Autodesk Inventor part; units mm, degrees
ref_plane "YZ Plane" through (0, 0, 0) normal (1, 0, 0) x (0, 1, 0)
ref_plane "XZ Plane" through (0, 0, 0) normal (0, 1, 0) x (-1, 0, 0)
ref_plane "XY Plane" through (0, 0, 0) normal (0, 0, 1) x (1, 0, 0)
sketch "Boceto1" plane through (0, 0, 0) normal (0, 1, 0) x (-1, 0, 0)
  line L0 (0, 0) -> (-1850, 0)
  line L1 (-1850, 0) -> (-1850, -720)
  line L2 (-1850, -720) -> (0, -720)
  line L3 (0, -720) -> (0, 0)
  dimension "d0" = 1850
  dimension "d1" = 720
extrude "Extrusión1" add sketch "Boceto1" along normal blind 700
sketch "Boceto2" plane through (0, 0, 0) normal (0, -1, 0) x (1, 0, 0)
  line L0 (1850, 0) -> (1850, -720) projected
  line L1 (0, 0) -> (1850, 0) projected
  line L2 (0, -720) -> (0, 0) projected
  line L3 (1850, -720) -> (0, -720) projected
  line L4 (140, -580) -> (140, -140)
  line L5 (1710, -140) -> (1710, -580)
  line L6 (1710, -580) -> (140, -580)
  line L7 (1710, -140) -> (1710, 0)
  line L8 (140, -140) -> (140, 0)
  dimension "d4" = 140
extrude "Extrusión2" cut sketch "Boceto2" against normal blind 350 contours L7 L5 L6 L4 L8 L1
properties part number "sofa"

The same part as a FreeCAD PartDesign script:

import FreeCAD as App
import Part
import Sketcher
from FreeCAD import Vector
Q = App.Units.Quantity

doc = App.newDocument("Part")
params = doc.addObject("Spreadsheet::Sheet", "Params")
for row, (alias, value) in enumerate([
    ("sketch1_width", "1850 mm"),
    ("sketch1_height", "720 mm"),
    ("pad1_length", "700 mm"),
    ("sketch2_width", "1570 mm"),
    ("sketch2_height", "580 mm"),
    ("pocket1_length", "350 mm"),
], start=1):
    params.set(f"A{row}", alias)
    params.set(f"B{row}", "=" + value)
    params.setAlias(f"B{row}", alias)

body = doc.addObject("PartDesign::Body", "Body")

# Sketch on XZ plane
sketch1 = body.newObject("Sketcher::SketchObject", "Sketch")
sketch1.AttachmentSupport = (doc.getObject("XZ_Plane"), [""])
sketch1.MapMode = "FlatFace"
sketch1.addGeometry(Part.LineSegment(Vector(0, -720, 0), Vector(0, 0, 0)), False)
sketch1.addGeometry(Part.LineSegment(Vector(0, 0, 0), Vector(1850, 0, 0)), False)
sketch1.addGeometry(Part.LineSegment(Vector(1850, 0, 0), Vector(1850, -720, 0)), False)
sketch1.addGeometry(Part.LineSegment(Vector(1850, -720, 0), Vector(0, -720, 0)), False)
sketch1.addConstraint(Sketcher.Constraint("Coincident", 0, 2, 1, 1))
sketch1.addConstraint(Sketcher.Constraint("Coincident", 1, 2, 2, 1))
sketch1.addConstraint(Sketcher.Constraint("Coincident", 2, 2, 3, 1))
sketch1.addConstraint(Sketcher.Constraint("Coincident", 3, 2, 0, 1))
sketch1.addConstraint(Sketcher.Constraint("Vertical", 0))
sketch1.addConstraint(Sketcher.Constraint("Horizontal", 1))
sketch1.addConstraint(Sketcher.Constraint("Vertical", 2))
sketch1.addConstraint(Sketcher.Constraint("Horizontal", 3))
sketch1.addConstraint(Sketcher.Constraint("Coincident", 0, 2, -1, 1))
sketch1.addConstraint(Sketcher.Constraint("DistanceX", 1, 1, 1, 2, Q("1850 mm")))
sketch1.addConstraint(Sketcher.Constraint("DistanceY", 0, 1, 0, 2, Q("720 mm")))
sketch1.setExpression("Constraints[9]", "Params.sketch1_width")
sketch1.setExpression("Constraints[10]", "Params.sketch1_height")
pad1 = body.newObject("PartDesign::Pad", "Pad")
pad1.Profile = sketch1
pad1.setExpression("Length", "Params.pad1_length")
pad1.Reversed = True

# Sketch on XZ plane
sketch2 = body.newObject("Sketcher::SketchObject", "Sketch001")
sketch2.AttachmentSupport = (doc.getObject("XZ_Plane"), [""])
sketch2.MapMode = "FlatFace"
sketch2.addGeometry(Part.LineSegment(Vector(1710, -580, 0), Vector(1710, 0, 0)), False)
sketch2.addGeometry(Part.LineSegment(Vector(1710, 0, 0), Vector(140, 0, 0)), False)
sketch2.addGeometry(Part.LineSegment(Vector(140, 0, 0), Vector(140, -580, 0)), False)
sketch2.addGeometry(Part.LineSegment(Vector(140, -580, 0), Vector(1710, -580, 0)), False)
sketch2.addConstraint(Sketcher.Constraint("Coincident", 0, 2, 1, 1))
sketch2.addConstraint(Sketcher.Constraint("Coincident", 1, 2, 2, 1))
sketch2.addConstraint(Sketcher.Constraint("Coincident", 2, 2, 3, 1))
sketch2.addConstraint(Sketcher.Constraint("Coincident", 3, 2, 0, 1))
sketch2.addConstraint(Sketcher.Constraint("Vertical", 0))
sketch2.addConstraint(Sketcher.Constraint("Horizontal", 1))
sketch2.addConstraint(Sketcher.Constraint("Vertical", 2))
sketch2.addConstraint(Sketcher.Constraint("Horizontal", 3))
sketch2.addConstraint(Sketcher.Constraint("PointOnObject", 0, 2, -1))
sketch2.addConstraint(Sketcher.Constraint("DistanceX", -1, 1, 1, 2, Q("140 mm")))
sketch2.addConstraint(Sketcher.Constraint("DistanceX", 1, 2, 1, 1, Q("1570 mm")))
sketch2.addConstraint(Sketcher.Constraint("DistanceY", 0, 1, 0, 2, Q("580 mm")))
sketch2.setExpression("Constraints[10]", "Params.sketch2_width")
sketch2.setExpression("Constraints[11]", "Params.sketch2_height")
pocket1 = body.newObject("PartDesign::Pocket", "Pocket")
pocket1.Profile = sketch2
pocket1.setExpression("Length", "Params.pocket1_length")

doc.recompute()
